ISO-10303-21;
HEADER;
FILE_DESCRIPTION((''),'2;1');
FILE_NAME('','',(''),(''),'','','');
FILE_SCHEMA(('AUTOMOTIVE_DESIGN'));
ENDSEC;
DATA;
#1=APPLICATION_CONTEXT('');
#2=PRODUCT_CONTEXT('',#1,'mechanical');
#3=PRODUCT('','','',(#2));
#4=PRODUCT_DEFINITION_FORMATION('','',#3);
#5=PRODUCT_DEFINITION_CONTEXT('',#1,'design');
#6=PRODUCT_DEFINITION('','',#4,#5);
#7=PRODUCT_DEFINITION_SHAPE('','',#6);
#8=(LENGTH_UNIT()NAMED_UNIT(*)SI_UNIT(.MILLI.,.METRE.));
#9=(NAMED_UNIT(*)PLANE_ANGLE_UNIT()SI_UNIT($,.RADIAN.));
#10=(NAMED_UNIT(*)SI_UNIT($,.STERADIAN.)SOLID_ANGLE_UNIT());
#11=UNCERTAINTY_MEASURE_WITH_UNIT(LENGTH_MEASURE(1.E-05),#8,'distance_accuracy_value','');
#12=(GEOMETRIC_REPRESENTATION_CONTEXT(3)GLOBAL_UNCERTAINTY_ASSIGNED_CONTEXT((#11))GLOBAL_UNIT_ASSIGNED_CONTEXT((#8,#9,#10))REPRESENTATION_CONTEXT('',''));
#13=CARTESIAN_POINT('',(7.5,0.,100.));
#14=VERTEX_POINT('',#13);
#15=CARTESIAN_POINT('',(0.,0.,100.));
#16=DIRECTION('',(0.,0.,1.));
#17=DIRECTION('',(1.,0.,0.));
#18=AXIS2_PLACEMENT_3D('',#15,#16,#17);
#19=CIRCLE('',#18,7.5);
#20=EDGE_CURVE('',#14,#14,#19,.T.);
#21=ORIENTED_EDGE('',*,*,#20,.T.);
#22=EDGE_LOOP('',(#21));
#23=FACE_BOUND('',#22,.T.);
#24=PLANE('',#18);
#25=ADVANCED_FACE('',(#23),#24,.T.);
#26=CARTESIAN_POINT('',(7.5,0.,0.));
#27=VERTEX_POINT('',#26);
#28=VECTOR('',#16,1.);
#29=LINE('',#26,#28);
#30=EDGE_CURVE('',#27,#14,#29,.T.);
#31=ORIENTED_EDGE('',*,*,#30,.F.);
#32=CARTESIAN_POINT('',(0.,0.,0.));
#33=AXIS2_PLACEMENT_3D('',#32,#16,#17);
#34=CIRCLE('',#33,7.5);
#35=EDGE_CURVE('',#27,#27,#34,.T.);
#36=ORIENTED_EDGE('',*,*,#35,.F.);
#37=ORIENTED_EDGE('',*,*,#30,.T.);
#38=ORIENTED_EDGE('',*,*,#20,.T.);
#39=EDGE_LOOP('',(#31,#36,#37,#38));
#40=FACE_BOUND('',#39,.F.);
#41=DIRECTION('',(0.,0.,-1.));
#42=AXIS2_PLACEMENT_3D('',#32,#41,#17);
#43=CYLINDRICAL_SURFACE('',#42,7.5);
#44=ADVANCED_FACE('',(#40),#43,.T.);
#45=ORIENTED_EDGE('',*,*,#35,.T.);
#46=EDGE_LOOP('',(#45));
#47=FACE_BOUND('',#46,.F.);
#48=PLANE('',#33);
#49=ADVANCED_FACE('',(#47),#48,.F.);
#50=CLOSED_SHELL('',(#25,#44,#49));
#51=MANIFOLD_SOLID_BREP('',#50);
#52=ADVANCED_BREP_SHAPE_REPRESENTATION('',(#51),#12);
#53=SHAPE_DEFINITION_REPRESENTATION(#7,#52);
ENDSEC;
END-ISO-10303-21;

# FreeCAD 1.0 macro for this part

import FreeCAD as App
import Part
import Sketcher

doc = App.newDocument("Part")
body = doc.addObject("PartDesign::Body", "Body")

# Sketch on XY plane
sketch1 = doc.addObject("Sketcher::SketchObject", "Sketch")
body.addObject(sketch1)
sketch1.AttachmentSupport = (doc.XY_Plane, [""])
sketch1.MapMode = "FlatFace"
sketch1.addGeometry(Part.Circle(App.Vector(0, 0, 0), App.Vector(0, 0, 1), 7.5), False)
sketch1.addConstraint(Sketcher.Constraint("Coincident", 0, 3, -1, 1))
sketch1.addConstraint(Sketcher.Constraint("Diameter", 0, 15.0))
pad1 = doc.addObject("PartDesign::Pad", "Pad")
body.addObject(pad1)
pad1.Profile = sketch1
pad1.Length = 100

doc.recompute()
